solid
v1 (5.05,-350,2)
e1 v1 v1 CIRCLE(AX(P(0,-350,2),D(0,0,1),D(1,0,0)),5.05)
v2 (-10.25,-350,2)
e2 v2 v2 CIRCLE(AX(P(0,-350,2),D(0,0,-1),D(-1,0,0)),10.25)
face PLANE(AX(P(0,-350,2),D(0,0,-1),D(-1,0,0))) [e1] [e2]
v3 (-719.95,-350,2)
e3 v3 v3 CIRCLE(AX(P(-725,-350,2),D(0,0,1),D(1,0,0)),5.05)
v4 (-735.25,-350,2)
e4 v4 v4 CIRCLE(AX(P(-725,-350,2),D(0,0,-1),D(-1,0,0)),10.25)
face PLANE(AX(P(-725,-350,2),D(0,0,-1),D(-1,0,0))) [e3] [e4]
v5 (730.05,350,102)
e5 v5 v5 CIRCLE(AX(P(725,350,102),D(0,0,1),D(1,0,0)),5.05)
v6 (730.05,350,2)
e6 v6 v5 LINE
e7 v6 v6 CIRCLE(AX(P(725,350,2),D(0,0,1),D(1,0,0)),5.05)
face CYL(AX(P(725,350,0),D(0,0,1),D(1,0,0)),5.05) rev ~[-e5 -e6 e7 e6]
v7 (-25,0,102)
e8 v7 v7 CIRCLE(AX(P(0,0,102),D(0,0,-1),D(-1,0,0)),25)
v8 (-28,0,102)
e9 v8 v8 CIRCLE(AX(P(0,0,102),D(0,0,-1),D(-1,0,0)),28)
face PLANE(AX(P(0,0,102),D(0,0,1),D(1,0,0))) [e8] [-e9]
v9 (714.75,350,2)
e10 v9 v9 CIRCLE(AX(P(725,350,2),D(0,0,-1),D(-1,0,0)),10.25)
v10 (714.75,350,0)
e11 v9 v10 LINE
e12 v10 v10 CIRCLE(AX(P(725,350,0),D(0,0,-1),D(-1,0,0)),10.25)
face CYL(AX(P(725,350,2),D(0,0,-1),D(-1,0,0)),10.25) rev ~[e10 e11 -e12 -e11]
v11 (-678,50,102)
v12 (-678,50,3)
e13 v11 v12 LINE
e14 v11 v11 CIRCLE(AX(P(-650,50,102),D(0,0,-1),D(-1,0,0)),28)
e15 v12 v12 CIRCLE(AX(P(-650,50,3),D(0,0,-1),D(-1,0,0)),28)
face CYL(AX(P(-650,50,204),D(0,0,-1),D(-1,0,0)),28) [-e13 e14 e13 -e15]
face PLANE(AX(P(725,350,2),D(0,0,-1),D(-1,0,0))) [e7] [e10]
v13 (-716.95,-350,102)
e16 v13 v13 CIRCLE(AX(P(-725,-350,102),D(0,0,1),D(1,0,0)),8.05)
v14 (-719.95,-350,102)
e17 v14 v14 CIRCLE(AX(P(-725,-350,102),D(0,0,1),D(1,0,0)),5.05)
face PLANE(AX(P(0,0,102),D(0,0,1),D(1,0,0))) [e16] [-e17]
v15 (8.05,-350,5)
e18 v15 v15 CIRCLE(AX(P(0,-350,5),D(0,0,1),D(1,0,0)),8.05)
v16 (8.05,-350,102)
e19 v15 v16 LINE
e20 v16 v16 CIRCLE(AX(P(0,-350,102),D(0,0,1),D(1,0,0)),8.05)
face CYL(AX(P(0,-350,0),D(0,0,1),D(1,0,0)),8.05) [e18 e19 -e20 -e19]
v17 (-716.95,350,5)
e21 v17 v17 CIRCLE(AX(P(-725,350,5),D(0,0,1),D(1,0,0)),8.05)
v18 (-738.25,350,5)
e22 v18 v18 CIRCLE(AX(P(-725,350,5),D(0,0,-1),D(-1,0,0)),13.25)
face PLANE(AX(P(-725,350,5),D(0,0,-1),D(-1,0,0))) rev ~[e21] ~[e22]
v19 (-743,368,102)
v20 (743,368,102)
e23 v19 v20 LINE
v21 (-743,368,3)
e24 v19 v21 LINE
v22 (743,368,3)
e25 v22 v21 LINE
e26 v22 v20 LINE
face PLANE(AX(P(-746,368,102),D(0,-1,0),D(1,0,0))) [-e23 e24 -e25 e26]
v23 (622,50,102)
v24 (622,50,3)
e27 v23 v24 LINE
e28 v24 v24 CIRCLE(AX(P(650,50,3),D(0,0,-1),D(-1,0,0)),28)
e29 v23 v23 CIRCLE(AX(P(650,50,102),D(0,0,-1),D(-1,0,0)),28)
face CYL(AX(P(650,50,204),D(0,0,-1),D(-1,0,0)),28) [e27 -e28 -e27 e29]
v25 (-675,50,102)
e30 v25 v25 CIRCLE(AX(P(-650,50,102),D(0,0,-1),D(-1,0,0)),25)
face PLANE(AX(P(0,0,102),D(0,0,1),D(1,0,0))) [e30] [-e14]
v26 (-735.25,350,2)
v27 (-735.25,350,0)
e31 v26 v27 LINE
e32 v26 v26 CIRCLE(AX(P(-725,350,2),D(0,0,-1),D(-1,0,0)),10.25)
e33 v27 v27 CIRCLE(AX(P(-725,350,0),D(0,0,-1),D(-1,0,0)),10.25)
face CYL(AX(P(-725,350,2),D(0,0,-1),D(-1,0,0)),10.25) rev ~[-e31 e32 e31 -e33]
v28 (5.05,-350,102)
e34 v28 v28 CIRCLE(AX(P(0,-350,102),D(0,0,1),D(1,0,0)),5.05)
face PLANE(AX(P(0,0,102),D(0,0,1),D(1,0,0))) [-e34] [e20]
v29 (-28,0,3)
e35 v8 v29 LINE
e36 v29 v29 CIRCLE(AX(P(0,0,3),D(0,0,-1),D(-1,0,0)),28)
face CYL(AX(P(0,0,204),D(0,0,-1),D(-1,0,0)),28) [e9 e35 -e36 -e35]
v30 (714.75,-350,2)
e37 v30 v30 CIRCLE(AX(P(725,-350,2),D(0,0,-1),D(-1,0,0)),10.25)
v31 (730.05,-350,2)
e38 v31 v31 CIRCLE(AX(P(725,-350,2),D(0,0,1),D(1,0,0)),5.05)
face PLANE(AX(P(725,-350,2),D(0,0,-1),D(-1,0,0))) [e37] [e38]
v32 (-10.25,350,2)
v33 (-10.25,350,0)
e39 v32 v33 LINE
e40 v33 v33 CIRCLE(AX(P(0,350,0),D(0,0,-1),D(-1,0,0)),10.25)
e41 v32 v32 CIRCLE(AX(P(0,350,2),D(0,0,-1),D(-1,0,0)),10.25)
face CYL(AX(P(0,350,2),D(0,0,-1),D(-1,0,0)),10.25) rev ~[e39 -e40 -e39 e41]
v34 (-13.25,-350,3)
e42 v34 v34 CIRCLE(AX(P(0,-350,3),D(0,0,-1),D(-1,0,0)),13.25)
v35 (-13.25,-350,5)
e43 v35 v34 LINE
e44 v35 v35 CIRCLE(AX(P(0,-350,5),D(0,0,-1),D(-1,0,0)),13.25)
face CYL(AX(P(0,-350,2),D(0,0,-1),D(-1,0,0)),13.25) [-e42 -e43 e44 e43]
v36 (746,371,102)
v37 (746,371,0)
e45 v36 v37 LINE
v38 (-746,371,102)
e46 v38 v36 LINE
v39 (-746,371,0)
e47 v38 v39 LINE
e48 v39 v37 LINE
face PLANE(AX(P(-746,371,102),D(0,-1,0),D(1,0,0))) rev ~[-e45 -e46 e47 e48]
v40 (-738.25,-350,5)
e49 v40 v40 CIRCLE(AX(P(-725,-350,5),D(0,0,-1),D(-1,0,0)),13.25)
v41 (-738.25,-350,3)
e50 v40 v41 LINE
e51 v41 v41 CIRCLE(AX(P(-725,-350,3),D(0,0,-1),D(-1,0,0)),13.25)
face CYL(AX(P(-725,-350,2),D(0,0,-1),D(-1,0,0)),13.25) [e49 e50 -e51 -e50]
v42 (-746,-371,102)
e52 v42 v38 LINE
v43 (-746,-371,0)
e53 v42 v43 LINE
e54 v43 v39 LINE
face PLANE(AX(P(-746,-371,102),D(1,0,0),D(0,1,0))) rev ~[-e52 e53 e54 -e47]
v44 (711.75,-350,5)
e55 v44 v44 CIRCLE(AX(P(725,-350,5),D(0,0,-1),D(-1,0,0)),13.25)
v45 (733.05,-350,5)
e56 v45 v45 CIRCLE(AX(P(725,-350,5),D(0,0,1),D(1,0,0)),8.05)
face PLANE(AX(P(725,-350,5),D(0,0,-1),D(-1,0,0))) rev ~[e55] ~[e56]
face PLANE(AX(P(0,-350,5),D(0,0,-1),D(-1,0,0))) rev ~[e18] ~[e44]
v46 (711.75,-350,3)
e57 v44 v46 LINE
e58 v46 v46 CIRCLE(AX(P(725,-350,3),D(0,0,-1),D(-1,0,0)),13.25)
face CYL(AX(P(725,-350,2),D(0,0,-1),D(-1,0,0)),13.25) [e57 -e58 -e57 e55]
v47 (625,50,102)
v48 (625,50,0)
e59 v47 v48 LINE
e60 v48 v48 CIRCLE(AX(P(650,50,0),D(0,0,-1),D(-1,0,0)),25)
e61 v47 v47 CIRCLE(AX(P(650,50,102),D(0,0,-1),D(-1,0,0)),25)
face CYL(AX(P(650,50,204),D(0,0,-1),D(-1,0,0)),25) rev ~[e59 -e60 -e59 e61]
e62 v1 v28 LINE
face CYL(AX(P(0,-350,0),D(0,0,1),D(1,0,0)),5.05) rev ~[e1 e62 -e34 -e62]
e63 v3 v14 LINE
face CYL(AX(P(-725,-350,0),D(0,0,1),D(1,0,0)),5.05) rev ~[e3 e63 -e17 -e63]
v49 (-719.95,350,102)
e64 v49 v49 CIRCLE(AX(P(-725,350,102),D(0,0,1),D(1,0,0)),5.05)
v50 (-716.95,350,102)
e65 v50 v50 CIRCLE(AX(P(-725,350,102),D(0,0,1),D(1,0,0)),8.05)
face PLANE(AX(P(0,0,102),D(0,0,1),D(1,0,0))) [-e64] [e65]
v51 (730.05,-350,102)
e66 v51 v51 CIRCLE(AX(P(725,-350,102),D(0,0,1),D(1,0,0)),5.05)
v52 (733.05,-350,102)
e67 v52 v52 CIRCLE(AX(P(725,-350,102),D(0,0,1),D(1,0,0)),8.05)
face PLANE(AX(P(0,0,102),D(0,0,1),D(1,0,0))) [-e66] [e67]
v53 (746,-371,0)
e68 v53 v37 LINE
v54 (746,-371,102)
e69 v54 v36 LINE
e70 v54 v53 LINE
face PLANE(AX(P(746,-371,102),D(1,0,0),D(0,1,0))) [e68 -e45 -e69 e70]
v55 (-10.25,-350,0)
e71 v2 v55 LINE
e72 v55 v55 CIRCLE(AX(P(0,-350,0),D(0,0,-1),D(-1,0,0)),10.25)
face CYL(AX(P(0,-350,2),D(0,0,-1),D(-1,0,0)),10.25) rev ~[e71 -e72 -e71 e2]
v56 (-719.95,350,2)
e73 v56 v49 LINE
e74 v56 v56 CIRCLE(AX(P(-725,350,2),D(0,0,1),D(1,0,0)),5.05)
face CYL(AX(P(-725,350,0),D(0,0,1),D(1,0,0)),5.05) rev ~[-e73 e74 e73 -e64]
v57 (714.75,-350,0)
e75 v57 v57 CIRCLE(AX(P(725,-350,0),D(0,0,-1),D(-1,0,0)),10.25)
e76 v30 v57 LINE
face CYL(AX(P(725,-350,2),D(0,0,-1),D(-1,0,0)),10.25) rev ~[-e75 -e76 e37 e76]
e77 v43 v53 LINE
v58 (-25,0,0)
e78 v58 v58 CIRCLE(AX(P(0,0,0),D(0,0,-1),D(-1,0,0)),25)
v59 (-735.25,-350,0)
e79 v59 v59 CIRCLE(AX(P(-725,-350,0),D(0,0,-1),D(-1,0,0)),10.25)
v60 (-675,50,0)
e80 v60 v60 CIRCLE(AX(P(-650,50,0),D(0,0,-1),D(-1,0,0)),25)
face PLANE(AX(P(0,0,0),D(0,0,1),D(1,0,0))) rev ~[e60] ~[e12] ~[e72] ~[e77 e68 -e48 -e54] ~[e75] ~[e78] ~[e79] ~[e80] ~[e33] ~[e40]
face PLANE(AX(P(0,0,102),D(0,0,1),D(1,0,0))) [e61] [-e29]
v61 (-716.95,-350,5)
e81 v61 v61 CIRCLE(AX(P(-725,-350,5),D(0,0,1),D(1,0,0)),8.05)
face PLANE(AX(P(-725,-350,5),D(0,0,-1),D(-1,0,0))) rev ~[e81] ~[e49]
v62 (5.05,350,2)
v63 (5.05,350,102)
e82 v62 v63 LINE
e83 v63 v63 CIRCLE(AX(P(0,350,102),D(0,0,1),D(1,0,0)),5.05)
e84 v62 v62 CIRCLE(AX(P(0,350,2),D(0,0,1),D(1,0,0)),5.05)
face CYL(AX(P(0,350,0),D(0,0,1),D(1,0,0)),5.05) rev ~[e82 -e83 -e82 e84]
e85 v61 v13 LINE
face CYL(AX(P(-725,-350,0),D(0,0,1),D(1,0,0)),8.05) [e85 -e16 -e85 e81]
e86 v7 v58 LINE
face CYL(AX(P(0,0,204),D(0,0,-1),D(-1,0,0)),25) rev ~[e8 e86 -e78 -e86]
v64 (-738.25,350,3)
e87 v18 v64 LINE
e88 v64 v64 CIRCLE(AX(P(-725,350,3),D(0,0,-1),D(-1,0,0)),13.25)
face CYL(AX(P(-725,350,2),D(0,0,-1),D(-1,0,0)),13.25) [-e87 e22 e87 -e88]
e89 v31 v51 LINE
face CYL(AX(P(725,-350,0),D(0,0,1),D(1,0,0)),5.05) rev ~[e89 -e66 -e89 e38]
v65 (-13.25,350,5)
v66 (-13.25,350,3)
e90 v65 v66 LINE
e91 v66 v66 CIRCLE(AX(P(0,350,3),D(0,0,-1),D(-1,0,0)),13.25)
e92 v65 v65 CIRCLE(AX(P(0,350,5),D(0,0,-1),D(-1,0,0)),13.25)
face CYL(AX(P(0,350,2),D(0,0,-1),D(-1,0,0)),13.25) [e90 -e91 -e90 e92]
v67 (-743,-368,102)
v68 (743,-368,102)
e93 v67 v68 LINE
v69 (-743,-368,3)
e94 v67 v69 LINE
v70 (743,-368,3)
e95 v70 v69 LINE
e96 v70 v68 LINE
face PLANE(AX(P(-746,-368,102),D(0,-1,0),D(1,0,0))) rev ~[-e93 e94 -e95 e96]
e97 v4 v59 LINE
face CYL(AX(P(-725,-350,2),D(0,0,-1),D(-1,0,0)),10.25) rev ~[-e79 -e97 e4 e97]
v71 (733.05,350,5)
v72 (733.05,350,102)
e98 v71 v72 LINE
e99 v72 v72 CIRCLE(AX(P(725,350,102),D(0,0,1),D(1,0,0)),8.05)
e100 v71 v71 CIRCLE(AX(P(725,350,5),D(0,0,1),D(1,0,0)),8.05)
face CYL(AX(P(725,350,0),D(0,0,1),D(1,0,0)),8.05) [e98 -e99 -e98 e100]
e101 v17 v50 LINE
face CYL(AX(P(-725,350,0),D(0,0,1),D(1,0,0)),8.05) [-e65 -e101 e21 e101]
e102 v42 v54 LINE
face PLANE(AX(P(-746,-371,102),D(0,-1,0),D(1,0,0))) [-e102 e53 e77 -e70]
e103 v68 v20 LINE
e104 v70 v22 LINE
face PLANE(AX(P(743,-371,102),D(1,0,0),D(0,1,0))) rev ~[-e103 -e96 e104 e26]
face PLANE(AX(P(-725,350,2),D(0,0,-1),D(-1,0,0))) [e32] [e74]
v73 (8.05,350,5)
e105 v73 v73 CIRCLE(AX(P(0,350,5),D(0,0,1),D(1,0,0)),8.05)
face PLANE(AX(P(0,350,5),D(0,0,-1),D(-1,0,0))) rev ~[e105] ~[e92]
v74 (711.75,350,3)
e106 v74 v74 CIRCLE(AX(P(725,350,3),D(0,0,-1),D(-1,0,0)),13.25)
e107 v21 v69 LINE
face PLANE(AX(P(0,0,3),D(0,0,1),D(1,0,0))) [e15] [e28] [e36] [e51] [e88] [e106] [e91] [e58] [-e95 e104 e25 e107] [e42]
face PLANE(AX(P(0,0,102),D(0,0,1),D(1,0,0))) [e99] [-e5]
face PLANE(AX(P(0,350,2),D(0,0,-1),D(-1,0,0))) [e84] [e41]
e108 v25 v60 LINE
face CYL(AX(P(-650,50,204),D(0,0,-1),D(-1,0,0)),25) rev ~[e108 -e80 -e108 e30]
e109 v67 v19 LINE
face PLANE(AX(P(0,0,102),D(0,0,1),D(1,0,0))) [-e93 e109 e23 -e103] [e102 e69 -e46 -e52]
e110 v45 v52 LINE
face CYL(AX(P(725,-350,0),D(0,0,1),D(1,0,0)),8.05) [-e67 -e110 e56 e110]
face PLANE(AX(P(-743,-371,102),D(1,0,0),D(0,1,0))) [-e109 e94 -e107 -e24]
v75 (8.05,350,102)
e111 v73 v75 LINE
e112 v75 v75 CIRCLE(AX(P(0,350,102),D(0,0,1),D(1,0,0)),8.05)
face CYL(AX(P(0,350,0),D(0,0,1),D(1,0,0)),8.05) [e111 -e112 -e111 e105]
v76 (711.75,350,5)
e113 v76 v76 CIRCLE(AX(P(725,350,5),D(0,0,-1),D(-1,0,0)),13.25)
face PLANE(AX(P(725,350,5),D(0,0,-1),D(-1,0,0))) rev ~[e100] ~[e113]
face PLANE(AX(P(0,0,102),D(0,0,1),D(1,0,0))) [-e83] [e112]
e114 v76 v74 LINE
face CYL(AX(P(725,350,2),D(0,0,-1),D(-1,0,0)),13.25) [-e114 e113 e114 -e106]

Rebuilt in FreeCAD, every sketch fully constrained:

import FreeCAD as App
import Part
import Sketcher
Q = App.Units.Quantity


def faces_at(feature, points):
    """Names of the faces that lie closest to the given points."""
    faces = feature.Shape.Faces
    near = lambda p: min(range(len(faces)), key=lambda i: faces[i].distToShape(Part.Vertex(*p))[0])
    return sorted({f"Face{near(p) + 1}" for p in points})


def add_polygon(sketch, points):
    """Adds a closed chain of lines whose ends are joined by coincident constraints."""
    first, n = sketch.GeometryCount, len(points)
    for a, b in zip(points, points[1:] + points[:1]):
        sketch.addGeometry(Part.LineSegment(App.Vector(*a, 0), App.Vector(*b, 0)), False)
    for i in range(n):
        sketch.addConstraint(Sketcher.Constraint("Coincident", first + i, 2, first + (i + 1) % n, 1))

doc = App.newDocument("Part")
body = doc.addObject("PartDesign::Body", "Body")

# Sketch on XY plane
sketch1 = body.newObject("Sketcher::SketchObject", "Sketch")
sketch1.AttachmentSupport = (doc.getObject("XY_Plane"), [""])
sketch1.MapMode = "FlatFace"
sketch1.AttachmentOffset = App.Placement(App.Vector(0, 0, 102), App.Rotation())
add_polygon(sketch1, [(-746, 371), (-746, -371), (746, -371), (746, 371)])  # lines 0-3
sketch1.addConstraint([
    Sketcher.Constraint("Vertical", 0),
    Sketcher.Constraint("Horizontal", 1),
    Sketcher.Constraint("Vertical", 2),
    Sketcher.Constraint("Horizontal", 3),
    Sketcher.Constraint("Symmetric", 0, 2, 2, 2, -1, 1),
    Sketcher.Constraint("DistanceX", 1, 1, 1, 2, Q("1492 mm")),
    Sketcher.Constraint("DistanceY", 0, 2, 0, 1, Q("742 mm")),
])
pad1 = body.newObject("PartDesign::Pad", "Pad")
pad1.Profile = sketch1
pad1.Length = 102
pad1.Reversed = True

# Sketch on XY plane
sketch2 = body.newObject("Sketcher::SketchObject", "Sketch001")
sketch2.AttachmentSupport = (doc.getObject("XY_Plane"), [""])
sketch2.MapMode = "FlatFace"
sketch2.addGeometry([
    Part.Circle(App.Vector(-725, 350, 0), App.Vector(0, 0, 1), 5),  # 0
    Part.Circle(App.Vector(725, 350, 0), App.Vector(0, 0, 1), 5),  # 1
    Part.Circle(App.Vector(725, -350, 0), App.Vector(0, 0, 1), 5),  # 2
    Part.Circle(App.Vector(-725, -350, 0), App.Vector(0, 0, 1), 5),  # 3
    Part.Circle(App.Vector(0, 350, 0), App.Vector(0, 0, 1), 5),  # 4
    Part.Circle(App.Vector(0, -350, 0), App.Vector(0, 0, 1), 5),  # 5
], False)
sketch2.addConstraint([
    Sketcher.Constraint("Equal", 0, 1),
    Sketcher.Constraint("Equal", 1, 2),
    Sketcher.Constraint("Equal", 2, 3),
    Sketcher.Constraint("Equal", 3, 4),
    Sketcher.Constraint("Equal", 4, 5),
    Sketcher.Constraint("Symmetric", 0, 3, 2, 3, -1, 1),
    Sketcher.Constraint("Symmetric", 1, 3, 3, 3, -1, 1),
    Sketcher.Constraint("Symmetric", 4, 3, 5, 3, -1, 1),
    Sketcher.Constraint("Symmetric", 0, 3, 1, 3, -2),
    Sketcher.Constraint("PointOnObject", 4, 3, -2),
    Sketcher.Constraint("Horizontal", 1, 3, 4, 3),
    Sketcher.Constraint("Diameter", 0, Q("10.1 mm")),
    Sketcher.Constraint("DistanceX", 0, 3, -1, 1, Q("725 mm")),
    Sketcher.Constraint("DistanceY", -1, 1, 0, 3, Q("350 mm")),
])
doc.recompute()
hole = body.newObject("PartDesign::Hole", "Hole")
hole.Profile = sketch2
hole.ThreadType = "None"
hole.Diameter = 10.1
hole.DepthType = "Dimension"
hole.Depth = 102
hole.DrillPoint = "Flat"
hole.HoleCutType = "Counterbore"
hole.HoleCutDiameter = 20.5
hole.HoleCutDepth = 2
hole.Reversed = True

# Sketch on XY plane
sketch3 = body.newObject("Sketcher::SketchObject", "Sketch002")
sketch3.AttachmentSupport = (doc.getObject("XY_Plane"), [""])
sketch3.MapMode = "FlatFace"
sketch3.AttachmentOffset = App.Placement(App.Vector(0, 0, 102), App.Rotation())
sketch3.addGeometry([
    Part.Circle(App.Vector(650, 50, 0), App.Vector(0, 0, 1), 25),
    Part.Circle(App.Vector(0, 0, 0), App.Vector(0, 0, 1), 25),
    Part.Circle(App.Vector(-650, 50, 0), App.Vector(0, 0, 1), 25),
], False)
sketch3.addConstraint([
    Sketcher.Constraint("Coincident", 1, 3, -1, 1),
    Sketcher.Constraint("Equal", 0, 1),
    Sketcher.Constraint("Equal", 1, 2),
    Sketcher.Constraint("Symmetric", 0, 3, 2, 3, -2),
    Sketcher.Constraint("Diameter", 0, Q("50 mm")),
    Sketcher.Constraint("DistanceX", -1, 1, 0, 3, Q("650 mm")),
    Sketcher.Constraint("DistanceY", -1, 1, 0, 3, Q("50 mm")),
])
doc.recompute()
hole2 = body.newObject("PartDesign::Hole", "Hole001")
hole2.Profile = sketch3
hole2.ThreadType = "None"
hole2.Diameter = 50
hole2.DepthType = "Dimension"
hole2.Depth = 102
hole2.DrillPoint = "Flat"
doc.recompute()

thickness = body.newObject("PartDesign::Thickness", "Thickness")
thickness.Base = (hole2, faces_at(hole2, [(-298.4, -148.4, 102)]))
thickness.Value = 3
thickness.Reversed = True
thickness.Join = "Intersection"

doc.recompute()
